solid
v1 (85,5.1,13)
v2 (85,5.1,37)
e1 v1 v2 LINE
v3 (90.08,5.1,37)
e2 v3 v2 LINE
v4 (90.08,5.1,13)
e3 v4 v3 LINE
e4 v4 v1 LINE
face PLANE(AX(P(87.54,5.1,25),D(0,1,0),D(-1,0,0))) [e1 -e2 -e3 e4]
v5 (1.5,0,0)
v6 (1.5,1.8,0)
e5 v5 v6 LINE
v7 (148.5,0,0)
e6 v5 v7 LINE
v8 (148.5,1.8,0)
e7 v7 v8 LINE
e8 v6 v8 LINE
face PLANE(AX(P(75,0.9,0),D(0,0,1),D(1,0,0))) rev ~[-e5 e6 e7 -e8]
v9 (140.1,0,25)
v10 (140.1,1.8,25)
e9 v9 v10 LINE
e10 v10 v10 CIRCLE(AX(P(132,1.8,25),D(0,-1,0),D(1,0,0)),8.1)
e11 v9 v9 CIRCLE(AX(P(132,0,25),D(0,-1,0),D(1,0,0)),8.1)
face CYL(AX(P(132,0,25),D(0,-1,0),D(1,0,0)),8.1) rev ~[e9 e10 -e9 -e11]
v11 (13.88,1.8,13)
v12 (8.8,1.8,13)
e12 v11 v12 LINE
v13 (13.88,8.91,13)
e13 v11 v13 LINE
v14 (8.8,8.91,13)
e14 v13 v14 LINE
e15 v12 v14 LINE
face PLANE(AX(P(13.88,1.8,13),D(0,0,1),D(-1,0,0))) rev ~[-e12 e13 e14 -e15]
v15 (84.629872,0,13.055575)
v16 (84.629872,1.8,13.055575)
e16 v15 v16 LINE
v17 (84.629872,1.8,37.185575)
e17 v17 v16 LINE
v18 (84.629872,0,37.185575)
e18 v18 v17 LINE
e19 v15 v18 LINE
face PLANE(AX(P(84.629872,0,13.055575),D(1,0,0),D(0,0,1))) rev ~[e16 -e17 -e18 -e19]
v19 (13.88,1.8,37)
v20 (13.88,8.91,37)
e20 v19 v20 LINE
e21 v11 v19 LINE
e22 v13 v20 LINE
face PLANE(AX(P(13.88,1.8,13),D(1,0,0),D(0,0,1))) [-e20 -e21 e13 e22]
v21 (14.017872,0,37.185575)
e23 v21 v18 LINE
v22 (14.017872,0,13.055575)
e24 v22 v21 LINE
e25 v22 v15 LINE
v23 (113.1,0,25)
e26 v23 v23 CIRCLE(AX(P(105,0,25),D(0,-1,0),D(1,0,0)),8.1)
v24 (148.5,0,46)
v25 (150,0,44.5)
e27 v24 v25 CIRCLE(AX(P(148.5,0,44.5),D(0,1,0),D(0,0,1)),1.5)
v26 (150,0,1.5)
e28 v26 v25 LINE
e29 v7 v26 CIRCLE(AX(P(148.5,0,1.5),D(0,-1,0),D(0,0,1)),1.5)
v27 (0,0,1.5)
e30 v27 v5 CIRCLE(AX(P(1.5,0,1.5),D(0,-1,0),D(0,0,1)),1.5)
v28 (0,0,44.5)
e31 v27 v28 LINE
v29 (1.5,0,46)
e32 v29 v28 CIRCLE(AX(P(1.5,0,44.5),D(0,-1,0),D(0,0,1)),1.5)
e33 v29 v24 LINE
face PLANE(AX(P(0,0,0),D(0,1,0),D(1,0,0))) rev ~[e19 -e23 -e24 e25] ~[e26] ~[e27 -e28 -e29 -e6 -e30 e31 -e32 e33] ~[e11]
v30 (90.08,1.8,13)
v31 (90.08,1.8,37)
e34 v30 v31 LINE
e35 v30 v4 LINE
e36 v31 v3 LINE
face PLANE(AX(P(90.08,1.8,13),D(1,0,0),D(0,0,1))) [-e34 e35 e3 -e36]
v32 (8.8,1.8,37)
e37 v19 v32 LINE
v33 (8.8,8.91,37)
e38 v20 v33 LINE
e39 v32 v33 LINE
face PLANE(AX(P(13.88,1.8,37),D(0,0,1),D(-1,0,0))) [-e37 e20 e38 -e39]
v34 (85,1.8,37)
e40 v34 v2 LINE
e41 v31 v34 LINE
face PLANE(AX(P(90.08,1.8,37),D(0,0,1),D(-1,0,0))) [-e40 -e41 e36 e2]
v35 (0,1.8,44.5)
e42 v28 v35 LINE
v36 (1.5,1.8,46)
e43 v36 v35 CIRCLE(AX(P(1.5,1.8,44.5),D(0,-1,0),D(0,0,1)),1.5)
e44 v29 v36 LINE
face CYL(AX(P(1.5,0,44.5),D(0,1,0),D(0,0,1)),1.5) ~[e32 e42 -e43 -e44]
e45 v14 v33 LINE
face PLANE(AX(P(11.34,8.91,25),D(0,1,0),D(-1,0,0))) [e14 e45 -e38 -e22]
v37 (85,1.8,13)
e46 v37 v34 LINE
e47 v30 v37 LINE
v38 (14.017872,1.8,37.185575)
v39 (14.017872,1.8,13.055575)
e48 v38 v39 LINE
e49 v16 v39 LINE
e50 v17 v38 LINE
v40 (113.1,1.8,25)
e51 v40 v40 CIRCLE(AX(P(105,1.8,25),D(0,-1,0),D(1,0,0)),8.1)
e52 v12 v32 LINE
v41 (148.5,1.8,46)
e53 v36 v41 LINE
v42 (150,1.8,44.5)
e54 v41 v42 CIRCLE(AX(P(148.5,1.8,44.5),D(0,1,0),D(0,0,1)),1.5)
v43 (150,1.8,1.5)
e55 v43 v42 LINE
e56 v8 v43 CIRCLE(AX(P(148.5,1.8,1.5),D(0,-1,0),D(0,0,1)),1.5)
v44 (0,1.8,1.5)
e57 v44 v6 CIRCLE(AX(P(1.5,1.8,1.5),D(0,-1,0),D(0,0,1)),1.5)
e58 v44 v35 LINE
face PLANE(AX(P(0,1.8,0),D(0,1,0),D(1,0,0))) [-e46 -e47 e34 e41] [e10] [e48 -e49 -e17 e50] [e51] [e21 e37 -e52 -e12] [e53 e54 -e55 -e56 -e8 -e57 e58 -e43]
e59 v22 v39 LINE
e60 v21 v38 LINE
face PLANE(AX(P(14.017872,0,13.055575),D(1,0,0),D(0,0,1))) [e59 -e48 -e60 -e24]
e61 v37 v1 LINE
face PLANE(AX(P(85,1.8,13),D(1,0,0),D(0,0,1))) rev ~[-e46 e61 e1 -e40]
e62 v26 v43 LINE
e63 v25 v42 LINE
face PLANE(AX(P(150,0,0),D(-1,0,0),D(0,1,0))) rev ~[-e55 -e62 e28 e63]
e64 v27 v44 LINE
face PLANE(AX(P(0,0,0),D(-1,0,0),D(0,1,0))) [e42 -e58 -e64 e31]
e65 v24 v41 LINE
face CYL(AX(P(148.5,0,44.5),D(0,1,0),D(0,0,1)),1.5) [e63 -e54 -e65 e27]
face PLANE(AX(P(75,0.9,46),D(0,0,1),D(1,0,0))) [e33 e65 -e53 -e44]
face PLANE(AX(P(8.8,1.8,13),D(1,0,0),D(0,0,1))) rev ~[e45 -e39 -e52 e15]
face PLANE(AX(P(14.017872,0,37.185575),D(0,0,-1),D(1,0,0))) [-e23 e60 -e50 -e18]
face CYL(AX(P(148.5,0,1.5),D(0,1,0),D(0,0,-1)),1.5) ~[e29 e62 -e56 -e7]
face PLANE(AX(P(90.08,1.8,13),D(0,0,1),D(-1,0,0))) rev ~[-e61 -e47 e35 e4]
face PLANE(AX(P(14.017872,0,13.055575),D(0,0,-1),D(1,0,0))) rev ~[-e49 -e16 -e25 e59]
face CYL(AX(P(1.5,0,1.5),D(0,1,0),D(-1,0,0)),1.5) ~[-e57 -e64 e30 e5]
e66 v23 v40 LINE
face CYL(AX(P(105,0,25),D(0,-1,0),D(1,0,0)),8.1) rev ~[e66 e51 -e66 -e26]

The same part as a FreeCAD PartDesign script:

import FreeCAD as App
import Part
import Sketcher


def edges_at(feature, points):
    """Names of the edges that pass closest to the given points."""
    edges = feature.Shape.Edges
    near = lambda p: min(range(len(edges)), key=lambda i: edges[i].distToShape(Part.Vertex(*p))[0])
    return sorted({f"Edge{near(p) + 1}" for p in points})

doc = App.newDocument("Part")
params = doc.addObject("Spreadsheet::Sheet", "Params")
for row, (alias, value) in enumerate([
    ("sketch1_height", "24 mm"),
    ("sketch1_width", "5.08 mm"),
    ("pad1_length", "7.11 mm"),
    ("sketch2_height", "24 mm"),
    ("sketch2_width", "5.08 mm"),
    ("pad2_length", "3.3 mm"),
    ("sketch3_width", "150 mm"),
    ("sketch3_height", "1.8 mm"),
    ("pad3_length", "46 mm"),
    ("sketch4_height", "24.13 mm"),
    ("sketch5_diameter", "16.2 mm"),
    ("fillet_radius", "1.5 mm"),
    ("fillet2_radius", "1.5 mm"),
    ("fillet3_radius", "1.5 mm"),
    ("fillet4_radius", "1.5 mm"),
], start=1):
    params.set(f"A{row}", alias)
    params.set(f"B{row}", "=" + value)
    params.setAlias(f"B{row}", alias)

body = doc.addObject("PartDesign::Body", "Body")

# Sketch on XY plane
sketch1 = doc.addObject("Sketcher::SketchObject", "Sketch")
body.addObject(sketch1)
sketch1.AttachmentSupport = (doc.XY_Plane, [""])
sketch1.MapMode = "FlatFace"
sketch1.addGeometry(Part.LineSegment(App.Vector(-14, 37, 0), App.Vector(-14, 13, 0)), False)
sketch1.addGeometry(Part.LineSegment(App.Vector(-14, 13, 0), App.Vector(-9, 13, 0)), False)
sketch1.addGeometry(Part.LineSegment(App.Vector(-9, 13, 0), App.Vector(-9, 37, 0)), False)
sketch1.addGeometry(Part.LineSegment(App.Vector(-9, 37, 0), App.Vector(-14, 37, 0)), False)
sketch1.addConstraint(Sketcher.Constraint("Coincident", 0, 2, 1, 1))
sketch1.addConstraint(Sketcher.Constraint("Coincident", 1, 2, 2, 1))
sketch1.addConstraint(Sketcher.Constraint("Coincident", 2, 2, 3, 1))
sketch1.addConstraint(Sketcher.Constraint("Coincident", 3, 2, 0, 1))
sketch1.addConstraint(Sketcher.Constraint("Vertical", 0))
sketch1.addConstraint(Sketcher.Constraint("Horizontal", 1))
sketch1.addConstraint(Sketcher.Constraint("Vertical", 2))
sketch1.addConstraint(Sketcher.Constraint("Horizontal", 3))
sketch1.addConstraint(Sketcher.Constraint("DistanceY", 0, 2, 0, 1, 24.0))
sketch1.addConstraint(Sketcher.Constraint("DistanceY", -1, 1, 0, 2, 13.0))
sketch1.addConstraint(Sketcher.Constraint("DistanceX", 1, 1, 1, 2, 5.08))
sketch1.addConstraint(Sketcher.Constraint("DistanceX", 1, 2, -1, 1, 8.8))
sketch1.setExpression("Constraints[8]", "Params.sketch1_height")
sketch1.setExpression("Constraints[10]", "Params.sketch1_width")
pad1 = doc.addObject("PartDesign::Pad", "Pad")
body.addObject(pad1)
pad1.Profile = sketch1
pad1.setExpression("Length", "Params.pad1_length")
body2 = doc.addObject("PartDesign::Body", "Body001")
doc.recompute()

body.Placement = App.Placement(App.Vector(0, 0, 0), App.Rotation(App.Vector(1, 0, 0), 90))
boolean = doc.addObject("PartDesign::Boolean", "Boolean")
body2.addObject(boolean)
boolean.Type = "Fuse"
boolean.addObjects([body])
body3 = doc.addObject("PartDesign::Body", "Body002")
doc.recompute()

body2.Placement = App.Placement(App.Vector(0, 1.8, 0), App.Rotation(App.Vector(0, 0, 1), 180))
boolean2 = doc.addObject("PartDesign::Boolean", "Boolean001")
body3.addObject(boolean2)
boolean2.Type = "Fuse"
boolean2.addObjects([body2])
body4 = doc.addObject("PartDesign::Body", "Body003")

# Sketch on XY plane
sketch2 = doc.addObject("Sketcher::SketchObject", "Sketch001")
body4.addObject(sketch2)
sketch2.AttachmentSupport = (doc.getObject("XY_Plane003"), [""])
sketch2.MapMode = "FlatFace"
sketch2.addGeometry(Part.LineSegment(App.Vector(-90, 37, 0), App.Vector(-90, 13, 0)), False)
sketch2.addGeometry(Part.LineSegment(App.Vector(-90, 13, 0), App.Vector(-85, 13, 0)), False)
sketch2.addGeometry(Part.LineSegment(App.Vector(-85, 13, 0), App.Vector(-85, 37, 0)), False)
sketch2.addGeometry(Part.LineSegment(App.Vector(-85, 37, 0), App.Vector(-90, 37, 0)), False)
sketch2.addConstraint(Sketcher.Constraint("Coincident", 0, 2, 1, 1))
sketch2.addConstraint(Sketcher.Constraint("Coincident", 1, 2, 2, 1))
sketch2.addConstraint(Sketcher.Constraint("Coincident", 2, 2, 3, 1))
sketch2.addConstraint(Sketcher.Constraint("Coincident", 3, 2, 0, 1))
sketch2.addConstraint(Sketcher.Constraint("Vertical", 0))
sketch2.addConstraint(Sketcher.Constraint("Horizontal", 1))
sketch2.addConstraint(Sketcher.Constraint("Vertical", 2))
sketch2.addConstraint(Sketcher.Constraint("Horizontal", 3))
sketch2.addConstraint(Sketcher.Constraint("DistanceY", 0, 2, 0, 1, 24.0))
sketch2.addConstraint(Sketcher.Constraint("DistanceY", -1, 1, 0, 2, 13.0))
sketch2.addConstraint(Sketcher.Constraint("DistanceX", 1, 2, -1, 1, 85.0))
sketch2.addConstraint(Sketcher.Constraint("DistanceX", 1, 1, 1, 2, 5.08))
sketch2.setExpression("Constraints[8]", "Params.sketch2_height")
sketch2.setExpression("Constraints[11]", "Params.sketch2_width")
pad2 = doc.addObject("PartDesign::Pad", "Pad001")
body4.addObject(pad2)
pad2.Profile = sketch2
pad2.setExpression("Length", "Params.pad2_length")
body5 = doc.addObject("PartDesign::Body", "Body004")
doc.recompute()

body4.Placement = App.Placement(App.Vector(0, 0, 0), App.Rotation(App.Vector(1, 0, 0), 90))
boolean3 = doc.addObject("PartDesign::Boolean", "Boolean002")
body5.addObject(boolean3)
boolean3.Type = "Fuse"
boolean3.addObjects([body4])
body6 = doc.addObject("PartDesign::Body", "Body005")
doc.recompute()

body5.Placement = App.Placement(App.Vector(0, 1.8, 0), App.Rotation(App.Vector(0, 0, 1), 180))
boolean4 = doc.addObject("PartDesign::Boolean", "Boolean003")
body6.addObject(boolean4)
boolean4.Type = "Fuse"
boolean4.addObjects([body5])
body7 = doc.addObject("PartDesign::Body", "Body006")

# Sketch on XY plane
sketch3 = doc.addObject("Sketcher::SketchObject", "Sketch002")
body7.addObject(sketch3)
sketch3.AttachmentSupport = (doc.getObject("XY_Plane006"), [""])
sketch3.MapMode = "FlatFace"
sketch3.addGeometry(Part.LineSegment(App.Vector(0, 1.8, 0), App.Vector(0, 0, 0)), False)
sketch3.addGeometry(Part.LineSegment(App.Vector(0, 0, 0), App.Vector(150, 0, 0)), False)
sketch3.addGeometry(Part.LineSegment(App.Vector(150, 0, 0), App.Vector(150, 1.8, 0)), False)
sketch3.addGeometry(Part.LineSegment(App.Vector(150, 1.8, 0), App.Vector(0, 1.8, 0)), False)
sketch3.addConstraint(Sketcher.Constraint("Coincident", 0, 2, 1, 1))
sketch3.addConstraint(Sketcher.Constraint("Coincident", 1, 2, 2, 1))
sketch3.addConstraint(Sketcher.Constraint("Coincident", 2, 2, 3, 1))
sketch3.addConstraint(Sketcher.Constraint("Coincident", 3, 2, 0, 1))
sketch3.addConstraint(Sketcher.Constraint("Vertical", 0))
sketch3.addConstraint(Sketcher.Constraint("Horizontal", 1))
sketch3.addConstraint(Sketcher.Constraint("Vertical", 2))
sketch3.addConstraint(Sketcher.Constraint("Horizontal", 3))
sketch3.addConstraint(Sketcher.Constraint("Coincident", 0, 2, -1, 1))
sketch3.addConstraint(Sketcher.Constraint("DistanceX", 1, 1, 1, 2, 150.0))
sketch3.addConstraint(Sketcher.Constraint("DistanceY", 0, 2, 0, 1, 1.8))
sketch3.setExpression("Constraints[9]", "Params.sketch3_width")
sketch3.setExpression("Constraints[10]", "Params.sketch3_height")
pad3 = doc.addObject("PartDesign::Pad", "Pad002")
body7.addObject(pad3)
pad3.Profile = sketch3
pad3.setExpression("Length", "Params.pad3_length")

# Sketch on XZ plane
sketch4 = doc.addObject("Sketcher::SketchObject", "Sketch003")
body7.addObject(sketch4)
sketch4.AttachmentSupport = (doc.getObject("XZ_Plane006"), [""])
sketch4.MapMode = "FlatFace"
sketch4.addGeometry(Part.LineSegment(App.Vector(14, 37, 0), App.Vector(14, 13, 0)), False)
sketch4.addGeometry(Part.LineSegment(App.Vector(14, 13, 0), App.Vector(85, 13, 0)), False)
sketch4.addGeometry(Part.LineSegment(App.Vector(85, 13, 0), App.Vector(85, 37, 0)), False)
sketch4.addGeometry(Part.LineSegment(App.Vector(85, 37, 0), App.Vector(14, 37, 0)), False)
sketch4.addConstraint(Sketcher.Constraint("Coincident", 0, 2, 1, 1))
sketch4.addConstraint(Sketcher.Constraint("Coincident", 1, 2, 2, 1))
sketch4.addConstraint(Sketcher.Constraint("Coincident", 2, 2, 3, 1))
sketch4.addConstraint(Sketcher.Constraint("Coincident", 3, 2, 0, 1))
sketch4.addConstraint(Sketcher.Constraint("Vertical", 0))
sketch4.addConstraint(Sketcher.Constraint("Horizontal", 1))
sketch4.addConstraint(Sketcher.Constraint("Vertical", 2))
sketch4.addConstraint(Sketcher.Constraint("Horizontal", 3))
sketch4.addConstraint(Sketcher.Constraint("DistanceY", 0, 2, 0, 1, 24.13))
sketch4.addConstraint(Sketcher.Constraint("DistanceX", 1, 1, 1, 2, 70.612))
sketch4.addConstraint(Sketcher.Constraint("DistanceX", -1, 1, 0, 2, 14.017872))
sketch4.addConstraint(Sketcher.Constraint("DistanceY", -1, 1, 0, 2, 13.055575))
sketch4.setExpression("Constraints[8]", "Params.sketch4_height")
pocket1 = doc.addObject("PartDesign::Pocket", "Pocket")
body7.addObject(pocket1)
pocket1.Profile = sketch4
pocket1.Type = "ThroughAll"

# Sketch on XZ plane
sketch5 = doc.addObject("Sketcher::SketchObject", "Sketch004")
body7.addObject(sketch5)
sketch5.AttachmentSupport = (doc.getObject("XZ_Plane006"), [""])
sketch5.MapMode = "FlatFace"
sketch5.addGeometry(Part.Circle(App.Vector(105, 25, 0), App.Vector(0, 0, 1), 8), False)
sketch5.addGeometry(Part.Circle(App.Vector(132, 25, 0), App.Vector(0, 0, 1), 8), False)
sketch5.addConstraint(Sketcher.Constraint("Equal", 0, 1))
sketch5.addConstraint(Sketcher.Constraint("Horizontal", 0, 3, 1, 3))
sketch5.addConstraint(Sketcher.Constraint("Diameter", 0, 16.2))
sketch5.addConstraint(Sketcher.Constraint("DistanceX", -1, 1, 0, 3, 105.0))
sketch5.addConstraint(Sketcher.Constraint("DistanceY", -1, 1, 0, 3, 25.0))
sketch5.addConstraint(Sketcher.Constraint("DistanceX", -1, 1, 1, 3, 132.0))
sketch5.setExpression("Constraints[2]", "Params.sketch5_diameter")
pocket2 = doc.addObject("PartDesign::Pocket", "Pocket001")
body7.addObject(pocket2)
pocket2.Profile = sketch5
pocket2.Type = "ThroughAll"
doc.recompute()

fillet = doc.addObject("PartDesign::Fillet", "Fillet")
body7.addObject(fillet)
fillet.Base = (pocket2, edges_at(pocket2, [(150, 0.9, 46)]))
fillet.setExpression("Radius", "Params.fillet_radius")
doc.recompute()

fillet2 = doc.addObject("PartDesign::Fillet", "Fillet001")
body7.addObject(fillet2)
fillet2.Base = (fillet, edges_at(fillet, [(0, 0.9, 46)]))
fillet2.setExpression("Radius", "Params.fillet2_radius")
doc.recompute()

fillet3 = doc.addObject("PartDesign::Fillet", "Fillet002")
body7.addObject(fillet3)
fillet3.Base = (fillet2, edges_at(fillet2, [(0, 0.9, 0)]))
fillet3.setExpression("Radius", "Params.fillet3_radius")
doc.recompute()

fillet4 = doc.addObject("PartDesign::Fillet", "Fillet003")
body7.addObject(fillet4)
fillet4.Base = (fillet3, edges_at(fillet3, [(150, 0.9, 0)]))
fillet4.setExpression("Radius", "Params.fillet4_radius")
doc.recompute()

boolean5 = doc.addObject("PartDesign::Boolean", "Boolean004")
body7.addObject(boolean5)
boolean5.Type = "Fuse"
boolean5.addObjects([body3])
doc.recompute()

boolean6 = doc.addObject("PartDesign::Boolean", "Boolean005")
body7.addObject(boolean6)
boolean6.Type = "Fuse"
boolean6.addObjects([body6])

doc.recompute()
